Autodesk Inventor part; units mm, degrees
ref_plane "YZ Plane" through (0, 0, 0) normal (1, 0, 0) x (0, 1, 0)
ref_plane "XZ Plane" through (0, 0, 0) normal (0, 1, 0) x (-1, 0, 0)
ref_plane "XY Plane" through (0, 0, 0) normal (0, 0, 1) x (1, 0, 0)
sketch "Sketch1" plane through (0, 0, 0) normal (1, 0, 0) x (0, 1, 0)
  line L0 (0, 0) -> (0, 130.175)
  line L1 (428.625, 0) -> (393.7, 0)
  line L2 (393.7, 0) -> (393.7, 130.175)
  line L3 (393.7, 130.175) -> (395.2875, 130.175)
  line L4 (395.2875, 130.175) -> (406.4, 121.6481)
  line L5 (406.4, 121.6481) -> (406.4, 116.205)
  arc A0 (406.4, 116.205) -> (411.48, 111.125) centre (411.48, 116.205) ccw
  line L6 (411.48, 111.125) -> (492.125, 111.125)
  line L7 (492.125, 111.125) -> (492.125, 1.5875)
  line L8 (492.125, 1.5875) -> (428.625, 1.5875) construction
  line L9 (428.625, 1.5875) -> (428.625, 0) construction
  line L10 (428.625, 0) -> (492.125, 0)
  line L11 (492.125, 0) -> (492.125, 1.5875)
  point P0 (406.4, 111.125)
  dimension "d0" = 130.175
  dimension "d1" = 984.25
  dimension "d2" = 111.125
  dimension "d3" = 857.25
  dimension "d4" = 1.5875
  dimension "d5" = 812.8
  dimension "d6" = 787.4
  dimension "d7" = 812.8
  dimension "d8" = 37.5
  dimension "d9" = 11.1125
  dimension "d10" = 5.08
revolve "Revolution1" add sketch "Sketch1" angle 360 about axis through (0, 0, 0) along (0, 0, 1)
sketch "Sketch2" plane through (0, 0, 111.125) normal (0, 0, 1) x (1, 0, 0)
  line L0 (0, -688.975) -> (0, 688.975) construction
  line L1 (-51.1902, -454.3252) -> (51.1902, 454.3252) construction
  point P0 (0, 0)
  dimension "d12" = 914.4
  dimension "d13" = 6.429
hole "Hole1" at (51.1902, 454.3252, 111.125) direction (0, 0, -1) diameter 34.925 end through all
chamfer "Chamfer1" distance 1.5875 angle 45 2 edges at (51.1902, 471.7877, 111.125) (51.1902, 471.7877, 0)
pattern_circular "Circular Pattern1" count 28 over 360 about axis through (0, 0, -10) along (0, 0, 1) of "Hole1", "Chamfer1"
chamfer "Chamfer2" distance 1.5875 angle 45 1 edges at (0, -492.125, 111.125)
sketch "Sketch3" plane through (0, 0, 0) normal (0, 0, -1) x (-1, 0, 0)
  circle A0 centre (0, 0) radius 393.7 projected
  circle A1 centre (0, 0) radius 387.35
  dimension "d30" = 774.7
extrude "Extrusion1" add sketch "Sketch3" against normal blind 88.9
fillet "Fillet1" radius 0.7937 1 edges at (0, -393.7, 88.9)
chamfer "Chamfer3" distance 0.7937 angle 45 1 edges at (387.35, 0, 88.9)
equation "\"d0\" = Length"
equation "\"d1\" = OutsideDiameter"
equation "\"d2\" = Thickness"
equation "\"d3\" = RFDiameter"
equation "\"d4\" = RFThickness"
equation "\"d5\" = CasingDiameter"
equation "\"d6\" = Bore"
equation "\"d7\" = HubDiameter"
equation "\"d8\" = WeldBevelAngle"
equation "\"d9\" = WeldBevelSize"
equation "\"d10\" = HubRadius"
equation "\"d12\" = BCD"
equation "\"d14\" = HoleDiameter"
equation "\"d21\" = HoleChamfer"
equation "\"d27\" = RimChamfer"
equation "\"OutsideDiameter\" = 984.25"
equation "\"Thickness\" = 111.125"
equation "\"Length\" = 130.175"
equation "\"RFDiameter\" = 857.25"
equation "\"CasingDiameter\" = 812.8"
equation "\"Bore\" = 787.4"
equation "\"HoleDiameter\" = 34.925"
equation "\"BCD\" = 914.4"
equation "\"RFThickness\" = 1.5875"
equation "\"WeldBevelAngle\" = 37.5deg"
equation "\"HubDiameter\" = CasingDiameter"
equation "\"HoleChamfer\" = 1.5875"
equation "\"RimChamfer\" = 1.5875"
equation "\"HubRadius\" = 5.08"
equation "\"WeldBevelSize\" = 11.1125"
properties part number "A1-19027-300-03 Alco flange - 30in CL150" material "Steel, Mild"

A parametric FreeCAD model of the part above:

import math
import FreeCAD as App
import Part
import Sketcher
Q = App.Units.Quantity


def edges_at(feature, points):
    """Names of the edges that pass closest to the given points."""
    edges = feature.Shape.Edges
    near = lambda p: min(range(len(edges)), key=lambda i: edges[i].distToShape(Part.Vertex(*p))[0])
    return sorted({f"Edge{near(p) + 1}" for p in points})

doc = App.newDocument("Part")
body = doc.addObject("PartDesign::Body", "Body")

# Sketch on YZ plane
sketch1 = body.newObject("Sketcher::SketchObject", "Sketch")
sketch1.AttachmentSupport = (doc.getObject("YZ_Plane"), [""])
sketch1.MapMode = "FlatFace"
sketch1.addGeometry([
    Part.LineSegment(App.Vector(393.7, 0, 0), App.Vector(492.1, 0, 0)),  # 0
    Part.LineSegment(App.Vector(492.1, 0, 0), App.Vector(492.1, 111.1, 0)),  # 1
    Part.LineSegment(App.Vector(492.1, 111.1, 0), App.Vector(411.5, 111.1, 0)),  # 2
    Part.ArcOfCircle(Part.Circle(App.Vector(411.5, 116.2, 0), App.Vector(0, 0, 1), 5.1), math.radians(180), math.radians(270)),  # 3
    Part.LineSegment(App.Vector(406.4, 116.2, 0), App.Vector(406.4, 121.6, 0)),  # 4
    Part.LineSegment(App.Vector(406.4, 121.6, 0), App.Vector(395.3, 130.2, 0)),  # 5
    Part.LineSegment(App.Vector(395.3, 130.2, 0), App.Vector(393.7, 130.2, 0)),  # 6
    Part.LineSegment(App.Vector(393.7, 130.2, 0), App.Vector(393.7, 0, 0)),  # 7
], False)
sketch1.addConstraint([
    Sketcher.Constraint("Coincident", 0, 2, 1, 1),
    Sketcher.Constraint("Coincident", 1, 2, 2, 1),
    Sketcher.Constraint("Tangent", 2, 2, 3, 2),
    Sketcher.Constraint("Tangent", 3, 1, 4, 1),
    Sketcher.Constraint("Coincident", 4, 2, 5, 1),
    Sketcher.Constraint("Coincident", 5, 2, 6, 1),
    Sketcher.Constraint("Coincident", 6, 2, 7, 1),
    Sketcher.Constraint("Coincident", 7, 2, 0, 1),
    Sketcher.Constraint("Horizontal", 0),
    Sketcher.Constraint("Vertical", 1),
    Sketcher.Constraint("Horizontal", 2),
    Sketcher.Constraint("Vertical", 4),
    Sketcher.Constraint("Horizontal", 6),
    Sketcher.Constraint("Vertical", 7),
    Sketcher.Constraint("PointOnObject", 0, 2, -1),
    Sketcher.Constraint("Radius", 3, Q("0.2 in")),
    Sketcher.Constraint("DistanceX", 6, 2, 6, 1, Q("0.0625 in")),
    Sketcher.Constraint("DistanceY", 1, 1, 1, 2, Q("4.375 in")),
    Sketcher.Constraint("DistanceY", 7, 2, 7, 1, Q("5.125 in")),
    Sketcher.Constraint("DistanceX", -1, 1, 3, 1, Q("16 in")),
    Sketcher.Constraint("DistanceX", 5, 2, 4, 2, Q("0.4375 in")),
    Sketcher.Constraint("Angle", 5, Q("142.5 deg")),
    Sketcher.Constraint("DistanceX", 0, 1, 0, 2, Q("3.875 in")),
])
revolution = body.newObject("PartDesign::Revolution", "Revolution")
revolution.Profile = sketch1
revolution.ReferenceAxis = (sketch1, ["V_Axis"])
revolution.Angle = 360

# Sketch on XY plane
sketch2 = body.newObject("Sketcher::SketchObject", "Sketch001")
sketch2.AttachmentSupport = (doc.getObject("XY_Plane"), [""])
sketch2.MapMode = "FlatFace"
sketch2.AttachmentOffset = App.Placement(App.Vector(0, 0, 4.375 * 25.4), App.Rotation())
sketch2.addGeometry(Part.Circle(App.Vector(51, 454, 0), App.Vector(0, 0, 1), 17), False)
sketch2.addConstraint([
    Sketcher.Constraint("Diameter", 0, Q("1.375 in")),
    Sketcher.Constraint("DistanceX", -1, 1, 0, 3, 51.1902),
    Sketcher.Constraint("DistanceY", -1, 1, 0, 3, 454.3252),
])
doc.recompute()
hole = body.newObject("PartDesign::Hole", "Hole")
hole.Profile = sketch2
hole.ThreadType = "None"
hole.Diameter = Q("1.375 in")
hole.DepthType = "ThroughAll"
doc.recompute()

chamfer = body.newObject("PartDesign::Chamfer", "Chamfer")
chamfer.Base = (hole, edges_at(hole, [(51.19, 471.788, 111.125), (51.19, 471.788, 0)]))
chamfer.Size = Q("0.0625 in")
doc.recompute()

polarpattern = body.newObject("PartDesign::PolarPattern", "PolarPattern")
polarpattern.Originals = [hole, chamfer]
polarpattern.Axis = (doc.getObject("Z_Axis"), [""])
polarpattern.Angle = 360
polarpattern.Occurrences = 28
body.Tip = polarpattern
doc.recompute()

chamfer2 = body.newObject("PartDesign::Chamfer", "Chamfer001")
chamfer2.Base = (polarpattern, edges_at(polarpattern, [(0, -492.125, 111.125)]))
chamfer2.Size = Q("0.0625 in")

# Sketch on XY plane
sketch3 = body.newObject("Sketcher::SketchObject", "Sketch002")
sketch3.AttachmentSupport = (doc.getObject("XY_Plane"), [""])
sketch3.MapMode = "FlatFace"
sketch3.addGeometry([
    Part.Circle(App.Vector(0, 0, 0), App.Vector(0, 0, 1), 394),
    Part.Circle(App.Vector(0, 0, 0), App.Vector(0, 0, 1), 387),
], False)
sketch3.addConstraint([
    Sketcher.Constraint("Coincident", 0, 3, -1, 1),
    Sketcher.Constraint("Coincident", 1, 3, -1, 1),
    Sketcher.Constraint("Diameter", 1, Q("30.5 in")),
    Sketcher.Constraint("Diameter", 0, Q("31 in")),
])
pad1 = body.newObject("PartDesign::Pad", "Pad")
pad1.Profile = sketch3
pad1.Length = Q("3.5 in")
doc.recompute()

fillet = body.newObject("PartDesign::Fillet", "Fillet")
fillet.Base = (pad1, edges_at(pad1, [(0, -393.7, 88.9)]))
fillet.Radius = Q("0.031248 in")
doc.recompute()

chamfer3 = body.newObject("PartDesign::Chamfer", "Chamfer002")
chamfer3.Base = (fillet, edges_at(fillet, [(387.35, 0, 88.9)]))
chamfer3.Size = Q("0.031248 in")

doc.recompute()
